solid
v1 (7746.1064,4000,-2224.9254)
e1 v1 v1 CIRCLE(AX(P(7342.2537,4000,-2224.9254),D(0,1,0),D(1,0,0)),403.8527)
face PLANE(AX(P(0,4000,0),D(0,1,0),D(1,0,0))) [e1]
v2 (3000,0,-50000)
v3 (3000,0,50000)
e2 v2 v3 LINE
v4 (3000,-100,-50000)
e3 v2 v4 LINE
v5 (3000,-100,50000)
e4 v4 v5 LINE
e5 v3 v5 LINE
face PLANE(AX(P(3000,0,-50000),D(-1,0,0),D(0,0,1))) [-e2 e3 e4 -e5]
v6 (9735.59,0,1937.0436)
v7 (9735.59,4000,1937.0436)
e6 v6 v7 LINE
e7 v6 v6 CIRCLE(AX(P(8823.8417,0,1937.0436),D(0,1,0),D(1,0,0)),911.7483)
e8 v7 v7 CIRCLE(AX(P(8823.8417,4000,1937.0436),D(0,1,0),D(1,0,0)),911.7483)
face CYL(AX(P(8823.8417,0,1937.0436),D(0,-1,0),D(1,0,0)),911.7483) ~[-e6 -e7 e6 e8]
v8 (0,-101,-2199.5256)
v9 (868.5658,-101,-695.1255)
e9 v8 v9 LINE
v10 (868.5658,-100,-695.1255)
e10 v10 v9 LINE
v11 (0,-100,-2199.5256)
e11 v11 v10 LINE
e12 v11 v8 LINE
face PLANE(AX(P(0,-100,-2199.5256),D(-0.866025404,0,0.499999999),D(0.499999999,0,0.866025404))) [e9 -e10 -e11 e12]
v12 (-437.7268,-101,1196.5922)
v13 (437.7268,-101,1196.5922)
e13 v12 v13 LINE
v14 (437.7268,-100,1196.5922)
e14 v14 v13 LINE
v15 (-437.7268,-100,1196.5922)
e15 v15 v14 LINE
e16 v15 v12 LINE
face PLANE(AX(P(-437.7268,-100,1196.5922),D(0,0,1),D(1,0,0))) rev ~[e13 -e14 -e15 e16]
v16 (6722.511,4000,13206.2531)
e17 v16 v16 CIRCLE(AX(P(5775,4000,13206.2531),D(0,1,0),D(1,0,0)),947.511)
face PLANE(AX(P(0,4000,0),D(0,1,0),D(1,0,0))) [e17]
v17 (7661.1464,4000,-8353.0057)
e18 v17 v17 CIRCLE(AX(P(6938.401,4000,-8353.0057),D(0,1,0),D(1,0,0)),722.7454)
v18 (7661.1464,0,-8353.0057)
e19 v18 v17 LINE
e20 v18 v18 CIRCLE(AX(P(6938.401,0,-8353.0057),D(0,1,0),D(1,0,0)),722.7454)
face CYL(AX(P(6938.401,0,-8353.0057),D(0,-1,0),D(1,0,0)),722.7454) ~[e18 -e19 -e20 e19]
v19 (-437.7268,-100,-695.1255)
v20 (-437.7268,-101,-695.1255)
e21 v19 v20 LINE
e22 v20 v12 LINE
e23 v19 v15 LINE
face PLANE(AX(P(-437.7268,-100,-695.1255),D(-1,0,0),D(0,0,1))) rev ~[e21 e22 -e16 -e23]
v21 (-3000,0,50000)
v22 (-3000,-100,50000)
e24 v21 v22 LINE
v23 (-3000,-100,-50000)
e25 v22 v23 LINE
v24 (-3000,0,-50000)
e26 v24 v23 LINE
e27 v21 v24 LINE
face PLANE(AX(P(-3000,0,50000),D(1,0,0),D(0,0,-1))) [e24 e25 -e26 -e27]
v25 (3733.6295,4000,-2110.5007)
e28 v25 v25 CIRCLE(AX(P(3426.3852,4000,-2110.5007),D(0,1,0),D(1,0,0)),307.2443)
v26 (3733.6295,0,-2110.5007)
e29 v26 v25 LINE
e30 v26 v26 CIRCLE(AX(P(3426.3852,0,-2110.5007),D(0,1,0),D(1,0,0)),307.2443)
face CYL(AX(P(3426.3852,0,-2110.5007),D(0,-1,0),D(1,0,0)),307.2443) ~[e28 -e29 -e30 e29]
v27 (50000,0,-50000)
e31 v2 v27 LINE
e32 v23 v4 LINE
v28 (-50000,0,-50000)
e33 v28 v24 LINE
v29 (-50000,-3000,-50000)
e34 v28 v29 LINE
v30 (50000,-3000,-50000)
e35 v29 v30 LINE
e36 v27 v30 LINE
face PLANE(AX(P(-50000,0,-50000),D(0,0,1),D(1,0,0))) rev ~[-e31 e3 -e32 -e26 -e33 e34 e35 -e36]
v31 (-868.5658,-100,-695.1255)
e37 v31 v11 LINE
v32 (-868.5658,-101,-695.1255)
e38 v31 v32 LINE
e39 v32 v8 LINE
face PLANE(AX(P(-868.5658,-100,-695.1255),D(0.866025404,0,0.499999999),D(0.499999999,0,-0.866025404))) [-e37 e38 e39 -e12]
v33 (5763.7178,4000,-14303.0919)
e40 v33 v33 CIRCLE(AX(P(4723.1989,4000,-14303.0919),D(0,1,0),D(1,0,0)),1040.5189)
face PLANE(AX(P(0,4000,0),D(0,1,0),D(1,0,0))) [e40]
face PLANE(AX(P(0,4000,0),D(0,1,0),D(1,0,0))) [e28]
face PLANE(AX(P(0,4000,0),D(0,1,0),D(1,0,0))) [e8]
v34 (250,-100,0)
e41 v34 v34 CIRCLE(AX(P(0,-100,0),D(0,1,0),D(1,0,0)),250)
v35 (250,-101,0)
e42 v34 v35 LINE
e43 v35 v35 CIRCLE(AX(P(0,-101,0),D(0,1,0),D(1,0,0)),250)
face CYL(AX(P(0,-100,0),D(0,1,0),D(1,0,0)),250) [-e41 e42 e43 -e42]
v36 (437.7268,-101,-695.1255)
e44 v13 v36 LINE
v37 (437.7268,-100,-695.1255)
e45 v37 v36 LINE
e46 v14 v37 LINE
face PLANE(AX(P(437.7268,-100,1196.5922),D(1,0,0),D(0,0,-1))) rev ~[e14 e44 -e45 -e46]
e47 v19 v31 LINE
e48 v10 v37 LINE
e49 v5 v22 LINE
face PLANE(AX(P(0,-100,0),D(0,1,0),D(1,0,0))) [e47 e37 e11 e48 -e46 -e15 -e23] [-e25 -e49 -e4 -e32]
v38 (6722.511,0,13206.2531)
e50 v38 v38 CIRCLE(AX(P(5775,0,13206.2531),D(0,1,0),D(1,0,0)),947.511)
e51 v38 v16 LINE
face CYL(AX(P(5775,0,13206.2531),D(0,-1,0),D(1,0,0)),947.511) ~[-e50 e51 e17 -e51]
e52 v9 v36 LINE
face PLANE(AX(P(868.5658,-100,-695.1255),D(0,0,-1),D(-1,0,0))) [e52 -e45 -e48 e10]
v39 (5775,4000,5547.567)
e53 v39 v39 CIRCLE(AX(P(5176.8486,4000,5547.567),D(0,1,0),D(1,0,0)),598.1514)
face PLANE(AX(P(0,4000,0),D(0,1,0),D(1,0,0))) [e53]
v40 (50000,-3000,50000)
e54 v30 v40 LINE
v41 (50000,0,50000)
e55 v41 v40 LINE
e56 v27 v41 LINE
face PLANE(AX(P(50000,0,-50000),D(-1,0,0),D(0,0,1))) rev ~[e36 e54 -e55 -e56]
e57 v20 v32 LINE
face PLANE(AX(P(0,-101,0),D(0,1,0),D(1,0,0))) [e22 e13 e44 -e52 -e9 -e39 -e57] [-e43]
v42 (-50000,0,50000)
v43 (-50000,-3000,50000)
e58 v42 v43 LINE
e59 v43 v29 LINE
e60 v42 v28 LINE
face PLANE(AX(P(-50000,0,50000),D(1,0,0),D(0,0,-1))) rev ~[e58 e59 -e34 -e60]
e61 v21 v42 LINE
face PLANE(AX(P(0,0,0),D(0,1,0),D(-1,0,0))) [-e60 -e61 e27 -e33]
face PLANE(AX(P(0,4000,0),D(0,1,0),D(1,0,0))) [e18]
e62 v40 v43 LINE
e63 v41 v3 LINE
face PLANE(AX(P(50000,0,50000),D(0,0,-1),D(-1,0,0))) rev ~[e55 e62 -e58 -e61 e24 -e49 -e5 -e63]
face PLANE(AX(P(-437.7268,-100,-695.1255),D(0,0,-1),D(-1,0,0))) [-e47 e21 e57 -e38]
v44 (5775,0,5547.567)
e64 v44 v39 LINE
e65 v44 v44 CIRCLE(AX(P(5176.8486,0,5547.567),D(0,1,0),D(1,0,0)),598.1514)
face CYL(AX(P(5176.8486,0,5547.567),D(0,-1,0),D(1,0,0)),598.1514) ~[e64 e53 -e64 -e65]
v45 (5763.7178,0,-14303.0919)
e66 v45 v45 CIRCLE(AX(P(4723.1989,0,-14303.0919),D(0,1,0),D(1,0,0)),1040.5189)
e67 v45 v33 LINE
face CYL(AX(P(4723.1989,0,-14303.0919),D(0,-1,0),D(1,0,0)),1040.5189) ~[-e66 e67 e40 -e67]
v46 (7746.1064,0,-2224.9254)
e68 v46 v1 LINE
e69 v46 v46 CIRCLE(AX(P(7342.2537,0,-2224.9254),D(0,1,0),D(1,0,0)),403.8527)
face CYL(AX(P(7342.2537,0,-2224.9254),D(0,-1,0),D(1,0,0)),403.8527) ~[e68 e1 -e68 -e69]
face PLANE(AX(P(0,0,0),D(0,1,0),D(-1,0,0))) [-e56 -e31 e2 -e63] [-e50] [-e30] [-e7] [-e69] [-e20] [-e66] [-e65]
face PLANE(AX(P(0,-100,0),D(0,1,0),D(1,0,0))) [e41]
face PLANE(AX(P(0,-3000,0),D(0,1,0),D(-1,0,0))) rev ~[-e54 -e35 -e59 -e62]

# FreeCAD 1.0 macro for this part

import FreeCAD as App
import Part
import Sketcher
Q = App.Units.Quantity

doc = App.newDocument("Part")
body = doc.addObject("PartDesign::Body", "Body")

sketch1 = doc.addObject("Sketcher::SketchObject", "Sketch")
body.addObject(sketch1)
sketch1.AttachmentSupport = (doc.XZ_Plane, [""])
sketch1.MapMode = "FlatFace"
sketch1.addGeometry([
    Part.LineSegment(App.Vector(-50000, 50000, 0), App.Vector(50000, 50000, 0)),
    Part.LineSegment(App.Vector(50000, 50000, 0), App.Vector(50000, -50000, 0)),
    Part.LineSegment(App.Vector(50000, -50000, 0), App.Vector(-50000, -50000, 0)),
    Part.LineSegment(App.Vector(-50000, -50000, 0), App.Vector(-50000, 50000, 0)),
], False)
sketch1.addConstraint([
    Sketcher.Constraint("Coincident", 0, 2, 1, 1),
    Sketcher.Constraint("Coincident", 1, 2, 2, 1),
    Sketcher.Constraint("Coincident", 2, 2, 3, 1),
    Sketcher.Constraint("Coincident", 3, 2, 0, 1),
    Sketcher.Constraint("Horizontal", 0),
    Sketcher.Constraint("Vertical", 1),
    Sketcher.Constraint("Horizontal", 2),
    Sketcher.Constraint("Vertical", 3),
    Sketcher.Constraint("Symmetric", 0, 2, 2, 2, -1, 1),
    Sketcher.Constraint("Equal", 2, 1),
    Sketcher.Constraint("DistanceX", 0, 1, 0, 2, 100000.0),
])
pad1 = doc.addObject("PartDesign::Pad", "Pad")
body.addObject(pad1)
pad1.Profile = sketch1
pad1.Length = 3000

sketch2 = doc.addObject("Sketcher::SketchObject", "Sketch001")
body.addObject(sketch2)
sketch2.AttachmentSupport = (doc.XZ_Plane, [""])
sketch2.MapMode = "FlatFace"
sketch2.addGeometry([
    Part.LineSegment(App.Vector(3000, -50000, 0), App.Vector(-3000, -50000, 0)),
    Part.LineSegment(App.Vector(-3000, -50000, 0), App.Vector(-3000, 50000, 0)),
    Part.LineSegment(App.Vector(-3000, 50000, 0), App.Vector(3000, 50000, 0)),
    Part.LineSegment(App.Vector(3000, 50000, 0), App.Vector(3000, -50000, 0)),
], False)
sketch2.addConstraint([
    Sketcher.Constraint("Coincident", 0, 2, 1, 1),
    Sketcher.Constraint("Coincident", 1, 2, 2, 1),
    Sketcher.Constraint("Coincident", 2, 2, 3, 1),
    Sketcher.Constraint("Coincident", 3, 2, 0, 1),
    Sketcher.Constraint("Horizontal", 0),
    Sketcher.Constraint("Vertical", 1),
    Sketcher.Constraint("Horizontal", 2),
    Sketcher.Constraint("Vertical", 3),
    Sketcher.Constraint("Symmetric", 0, 2, 2, 2, -1, 1),
    Sketcher.Constraint("DistanceX", 0, 2, 0, 1, 6000.0),
    Sketcher.Constraint("DistanceY", 1, 1, 1, 2, 100000.0),
])
pocket1 = doc.addObject("PartDesign::Pocket", "Pocket")
body.addObject(pocket1)
pocket1.Profile = sketch2
pocket1.Length = 100
pocket1.Reversed = True

sketch3 = doc.addObject("Sketcher::SketchObject", "Sketch002")
body.addObject(sketch3)
sketch3.AttachmentSupport = (doc.XZ_Plane, [""])
sketch3.MapMode = "FlatFace"
sketch3.AttachmentOffset = App.Placement(App.Vector(0, 0, 100), App.Rotation())
sketch3.addGeometry([
    Part.LineSegment(App.Vector(-437.7268, -695.1255, 0), App.Vector(-437.7268, 1196.5922, 0)),
    Part.LineSegment(App.Vector(-437.7268, 1196.5922, 0), App.Vector(437.7268, 1196.5922, 0)),
    Part.LineSegment(App.Vector(437.7268, 1196.5922, 0), App.Vector(437.7268, -695.1255, 0)),
    Part.LineSegment(App.Vector(437.7268, -695.1255, 0), App.Vector(868.5658, -695.1255, 0)),
    Part.LineSegment(App.Vector(868.5658, -695.1255, 0), App.Vector(0, -2199.5256, 0)),
    Part.LineSegment(App.Vector(0, -2199.5256, 0), App.Vector(-868.5658, -695.1255, 0)),
    Part.LineSegment(App.Vector(-868.5658, -695.1255, 0), App.Vector(-437.7268, -695.1255, 0)),
    Part.Circle(App.Vector(0, 0, 0), App.Vector(0, 0, 1), 250),
], False)
sketch3.addConstraint([
    Sketcher.Constraint("Coincident", 0, 2, 1, 1),
    Sketcher.Constraint("Coincident", 1, 2, 2, 1),
    Sketcher.Constraint("Coincident", 2, 2, 3, 1),
    Sketcher.Constraint("Coincident", 3, 2, 4, 1),
    Sketcher.Constraint("Coincident", 4, 2, 5, 1),
    Sketcher.Constraint("Coincident", 5, 2, 6, 1),
    Sketcher.Constraint("Coincident", 6, 2, 0, 1),
    Sketcher.Constraint("Vertical", 0),
    Sketcher.Constraint("Horizontal", 1),
    Sketcher.Constraint("Vertical", 2),
    Sketcher.Constraint("Horizontal", 3),
    Sketcher.Constraint("Horizontal", 6),
    Sketcher.Constraint("Coincident", 7, 3, -1, 1),
    Sketcher.Constraint("Symmetric", 3, 2, 5, 2, -2),
    Sketcher.Constraint("PointOnObject", 4, 2, -2),
    Sketcher.Constraint("Equal", 3, 6),
    Sketcher.Constraint("Diameter", 7, 500.0),
    Sketcher.Constraint("Angle", 4, Q("-120 deg")),
    Sketcher.Constraint("DistanceY", 4, 2, 2, 2, 1504.4),
    Sketcher.Constraint("DistanceX", 3, 1, 3, 2, 430.839),
    Sketcher.Constraint("DistanceY", 0, 1, 0, 2, 1891.7177),
    Sketcher.Constraint("DistanceY", -1, 1, 0, 2, 1196.5922),
])
pocket2 = doc.addObject("PartDesign::Pocket", "Pocket001")
body.addObject(pocket2)
pocket2.Profile = sketch3
pocket2.Length = 1
pocket2.Reversed = True

sketch4 = doc.addObject("Sketcher::SketchObject", "Sketch003")
body.addObject(sketch4)
sketch4.AttachmentSupport = (doc.XZ_Plane, [""])
sketch4.MapMode = "FlatFace"
sketch4.addGeometry([
    Part.Circle(App.Vector(3426.3852, -2110.5007, 0), App.Vector(0, 0, 1), 307.2443),
    Part.Circle(App.Vector(7342.2537, -2224.9254, 0), App.Vector(0, 0, 1), 403.8527),
    Part.Circle(App.Vector(6938.401, -8353.0057, 0), App.Vector(0, 0, 1), 722.7454),
    Part.Circle(App.Vector(4723.1989, -14303.0919, 0), App.Vector(0, 0, 1), 1040.5189),
    Part.Circle(App.Vector(5176.8486, 5547.567, 0), App.Vector(0, 0, 1), 598.1514),
    Part.Circle(App.Vector(8823.8417, 1937.0436, 0), App.Vector(0, 0, 1), 911.7483),
    Part.Circle(App.Vector(5775, 13206.2531, 0), App.Vector(0, 0, 1), 947.511),
], False)
sketch4.addConstraint([
    Sketcher.Constraint("Diameter", 6, 1895.022),
    Sketcher.Constraint("DistanceX", -1, 1, 6, 3, 5775.0),
    Sketcher.Constraint("Diameter", 0, 614.4886),
    Sketcher.Constraint("Diameter", 1, 807.7054),
    Sketcher.Constraint("Diameter", 2, 1445.4908),
    Sketcher.Constraint("Diameter", 3, 2081.0378),
    Sketcher.Constraint("Diameter", 4, 1196.3028),
    Sketcher.Constraint("Diameter", 5, 1823.4966),
    Sketcher.Constraint("DistanceX", -1, 1, 2, 3, 6938.401),
    Sketcher.Constraint("DistanceX", -1, 1, 3, 3, 4723.199),
    Sketcher.Constraint("DistanceY", 3, 3, -1, 1, 14303.092),
    Sketcher.Constraint("DistanceY", -1, 1, 4, 3, 5547.567),
    Sketcher.Constraint("DistanceY", -1, 1, 6, 3, 13206.253),
    Sketcher.Constraint("DistanceY", 2, 3, 0, 3, 6242.505),
    Sketcher.Constraint("DistanceX", 4, 3, 1, 3, 2165.405),
    Sketcher.Constraint("DistanceX", 1, 3, 5, 3, 1481.588),
    Sketcher.Constraint("DistanceY", 1, 3, 5, 3, 4161.969),
    Sketcher.Constraint("DistanceX", -1, 1, 0, 3, 3426.3852),
    Sketcher.Constraint("DistanceY", 0, 3, -1, 1, 2110.5007),
    Sketcher.Constraint("DistanceX", -1, 1, 1, 3, 7342.2537),
    Sketcher.Constraint("DistanceY", 1, 3, -1, 1, 2224.9254),
])
pad2 = doc.addObject("PartDesign::Pad", "Pad001")
body.addObject(pad2)
pad2.Profile = sketch4
pad2.Length = 4000
pad2.Reversed = True

doc.recompute()
